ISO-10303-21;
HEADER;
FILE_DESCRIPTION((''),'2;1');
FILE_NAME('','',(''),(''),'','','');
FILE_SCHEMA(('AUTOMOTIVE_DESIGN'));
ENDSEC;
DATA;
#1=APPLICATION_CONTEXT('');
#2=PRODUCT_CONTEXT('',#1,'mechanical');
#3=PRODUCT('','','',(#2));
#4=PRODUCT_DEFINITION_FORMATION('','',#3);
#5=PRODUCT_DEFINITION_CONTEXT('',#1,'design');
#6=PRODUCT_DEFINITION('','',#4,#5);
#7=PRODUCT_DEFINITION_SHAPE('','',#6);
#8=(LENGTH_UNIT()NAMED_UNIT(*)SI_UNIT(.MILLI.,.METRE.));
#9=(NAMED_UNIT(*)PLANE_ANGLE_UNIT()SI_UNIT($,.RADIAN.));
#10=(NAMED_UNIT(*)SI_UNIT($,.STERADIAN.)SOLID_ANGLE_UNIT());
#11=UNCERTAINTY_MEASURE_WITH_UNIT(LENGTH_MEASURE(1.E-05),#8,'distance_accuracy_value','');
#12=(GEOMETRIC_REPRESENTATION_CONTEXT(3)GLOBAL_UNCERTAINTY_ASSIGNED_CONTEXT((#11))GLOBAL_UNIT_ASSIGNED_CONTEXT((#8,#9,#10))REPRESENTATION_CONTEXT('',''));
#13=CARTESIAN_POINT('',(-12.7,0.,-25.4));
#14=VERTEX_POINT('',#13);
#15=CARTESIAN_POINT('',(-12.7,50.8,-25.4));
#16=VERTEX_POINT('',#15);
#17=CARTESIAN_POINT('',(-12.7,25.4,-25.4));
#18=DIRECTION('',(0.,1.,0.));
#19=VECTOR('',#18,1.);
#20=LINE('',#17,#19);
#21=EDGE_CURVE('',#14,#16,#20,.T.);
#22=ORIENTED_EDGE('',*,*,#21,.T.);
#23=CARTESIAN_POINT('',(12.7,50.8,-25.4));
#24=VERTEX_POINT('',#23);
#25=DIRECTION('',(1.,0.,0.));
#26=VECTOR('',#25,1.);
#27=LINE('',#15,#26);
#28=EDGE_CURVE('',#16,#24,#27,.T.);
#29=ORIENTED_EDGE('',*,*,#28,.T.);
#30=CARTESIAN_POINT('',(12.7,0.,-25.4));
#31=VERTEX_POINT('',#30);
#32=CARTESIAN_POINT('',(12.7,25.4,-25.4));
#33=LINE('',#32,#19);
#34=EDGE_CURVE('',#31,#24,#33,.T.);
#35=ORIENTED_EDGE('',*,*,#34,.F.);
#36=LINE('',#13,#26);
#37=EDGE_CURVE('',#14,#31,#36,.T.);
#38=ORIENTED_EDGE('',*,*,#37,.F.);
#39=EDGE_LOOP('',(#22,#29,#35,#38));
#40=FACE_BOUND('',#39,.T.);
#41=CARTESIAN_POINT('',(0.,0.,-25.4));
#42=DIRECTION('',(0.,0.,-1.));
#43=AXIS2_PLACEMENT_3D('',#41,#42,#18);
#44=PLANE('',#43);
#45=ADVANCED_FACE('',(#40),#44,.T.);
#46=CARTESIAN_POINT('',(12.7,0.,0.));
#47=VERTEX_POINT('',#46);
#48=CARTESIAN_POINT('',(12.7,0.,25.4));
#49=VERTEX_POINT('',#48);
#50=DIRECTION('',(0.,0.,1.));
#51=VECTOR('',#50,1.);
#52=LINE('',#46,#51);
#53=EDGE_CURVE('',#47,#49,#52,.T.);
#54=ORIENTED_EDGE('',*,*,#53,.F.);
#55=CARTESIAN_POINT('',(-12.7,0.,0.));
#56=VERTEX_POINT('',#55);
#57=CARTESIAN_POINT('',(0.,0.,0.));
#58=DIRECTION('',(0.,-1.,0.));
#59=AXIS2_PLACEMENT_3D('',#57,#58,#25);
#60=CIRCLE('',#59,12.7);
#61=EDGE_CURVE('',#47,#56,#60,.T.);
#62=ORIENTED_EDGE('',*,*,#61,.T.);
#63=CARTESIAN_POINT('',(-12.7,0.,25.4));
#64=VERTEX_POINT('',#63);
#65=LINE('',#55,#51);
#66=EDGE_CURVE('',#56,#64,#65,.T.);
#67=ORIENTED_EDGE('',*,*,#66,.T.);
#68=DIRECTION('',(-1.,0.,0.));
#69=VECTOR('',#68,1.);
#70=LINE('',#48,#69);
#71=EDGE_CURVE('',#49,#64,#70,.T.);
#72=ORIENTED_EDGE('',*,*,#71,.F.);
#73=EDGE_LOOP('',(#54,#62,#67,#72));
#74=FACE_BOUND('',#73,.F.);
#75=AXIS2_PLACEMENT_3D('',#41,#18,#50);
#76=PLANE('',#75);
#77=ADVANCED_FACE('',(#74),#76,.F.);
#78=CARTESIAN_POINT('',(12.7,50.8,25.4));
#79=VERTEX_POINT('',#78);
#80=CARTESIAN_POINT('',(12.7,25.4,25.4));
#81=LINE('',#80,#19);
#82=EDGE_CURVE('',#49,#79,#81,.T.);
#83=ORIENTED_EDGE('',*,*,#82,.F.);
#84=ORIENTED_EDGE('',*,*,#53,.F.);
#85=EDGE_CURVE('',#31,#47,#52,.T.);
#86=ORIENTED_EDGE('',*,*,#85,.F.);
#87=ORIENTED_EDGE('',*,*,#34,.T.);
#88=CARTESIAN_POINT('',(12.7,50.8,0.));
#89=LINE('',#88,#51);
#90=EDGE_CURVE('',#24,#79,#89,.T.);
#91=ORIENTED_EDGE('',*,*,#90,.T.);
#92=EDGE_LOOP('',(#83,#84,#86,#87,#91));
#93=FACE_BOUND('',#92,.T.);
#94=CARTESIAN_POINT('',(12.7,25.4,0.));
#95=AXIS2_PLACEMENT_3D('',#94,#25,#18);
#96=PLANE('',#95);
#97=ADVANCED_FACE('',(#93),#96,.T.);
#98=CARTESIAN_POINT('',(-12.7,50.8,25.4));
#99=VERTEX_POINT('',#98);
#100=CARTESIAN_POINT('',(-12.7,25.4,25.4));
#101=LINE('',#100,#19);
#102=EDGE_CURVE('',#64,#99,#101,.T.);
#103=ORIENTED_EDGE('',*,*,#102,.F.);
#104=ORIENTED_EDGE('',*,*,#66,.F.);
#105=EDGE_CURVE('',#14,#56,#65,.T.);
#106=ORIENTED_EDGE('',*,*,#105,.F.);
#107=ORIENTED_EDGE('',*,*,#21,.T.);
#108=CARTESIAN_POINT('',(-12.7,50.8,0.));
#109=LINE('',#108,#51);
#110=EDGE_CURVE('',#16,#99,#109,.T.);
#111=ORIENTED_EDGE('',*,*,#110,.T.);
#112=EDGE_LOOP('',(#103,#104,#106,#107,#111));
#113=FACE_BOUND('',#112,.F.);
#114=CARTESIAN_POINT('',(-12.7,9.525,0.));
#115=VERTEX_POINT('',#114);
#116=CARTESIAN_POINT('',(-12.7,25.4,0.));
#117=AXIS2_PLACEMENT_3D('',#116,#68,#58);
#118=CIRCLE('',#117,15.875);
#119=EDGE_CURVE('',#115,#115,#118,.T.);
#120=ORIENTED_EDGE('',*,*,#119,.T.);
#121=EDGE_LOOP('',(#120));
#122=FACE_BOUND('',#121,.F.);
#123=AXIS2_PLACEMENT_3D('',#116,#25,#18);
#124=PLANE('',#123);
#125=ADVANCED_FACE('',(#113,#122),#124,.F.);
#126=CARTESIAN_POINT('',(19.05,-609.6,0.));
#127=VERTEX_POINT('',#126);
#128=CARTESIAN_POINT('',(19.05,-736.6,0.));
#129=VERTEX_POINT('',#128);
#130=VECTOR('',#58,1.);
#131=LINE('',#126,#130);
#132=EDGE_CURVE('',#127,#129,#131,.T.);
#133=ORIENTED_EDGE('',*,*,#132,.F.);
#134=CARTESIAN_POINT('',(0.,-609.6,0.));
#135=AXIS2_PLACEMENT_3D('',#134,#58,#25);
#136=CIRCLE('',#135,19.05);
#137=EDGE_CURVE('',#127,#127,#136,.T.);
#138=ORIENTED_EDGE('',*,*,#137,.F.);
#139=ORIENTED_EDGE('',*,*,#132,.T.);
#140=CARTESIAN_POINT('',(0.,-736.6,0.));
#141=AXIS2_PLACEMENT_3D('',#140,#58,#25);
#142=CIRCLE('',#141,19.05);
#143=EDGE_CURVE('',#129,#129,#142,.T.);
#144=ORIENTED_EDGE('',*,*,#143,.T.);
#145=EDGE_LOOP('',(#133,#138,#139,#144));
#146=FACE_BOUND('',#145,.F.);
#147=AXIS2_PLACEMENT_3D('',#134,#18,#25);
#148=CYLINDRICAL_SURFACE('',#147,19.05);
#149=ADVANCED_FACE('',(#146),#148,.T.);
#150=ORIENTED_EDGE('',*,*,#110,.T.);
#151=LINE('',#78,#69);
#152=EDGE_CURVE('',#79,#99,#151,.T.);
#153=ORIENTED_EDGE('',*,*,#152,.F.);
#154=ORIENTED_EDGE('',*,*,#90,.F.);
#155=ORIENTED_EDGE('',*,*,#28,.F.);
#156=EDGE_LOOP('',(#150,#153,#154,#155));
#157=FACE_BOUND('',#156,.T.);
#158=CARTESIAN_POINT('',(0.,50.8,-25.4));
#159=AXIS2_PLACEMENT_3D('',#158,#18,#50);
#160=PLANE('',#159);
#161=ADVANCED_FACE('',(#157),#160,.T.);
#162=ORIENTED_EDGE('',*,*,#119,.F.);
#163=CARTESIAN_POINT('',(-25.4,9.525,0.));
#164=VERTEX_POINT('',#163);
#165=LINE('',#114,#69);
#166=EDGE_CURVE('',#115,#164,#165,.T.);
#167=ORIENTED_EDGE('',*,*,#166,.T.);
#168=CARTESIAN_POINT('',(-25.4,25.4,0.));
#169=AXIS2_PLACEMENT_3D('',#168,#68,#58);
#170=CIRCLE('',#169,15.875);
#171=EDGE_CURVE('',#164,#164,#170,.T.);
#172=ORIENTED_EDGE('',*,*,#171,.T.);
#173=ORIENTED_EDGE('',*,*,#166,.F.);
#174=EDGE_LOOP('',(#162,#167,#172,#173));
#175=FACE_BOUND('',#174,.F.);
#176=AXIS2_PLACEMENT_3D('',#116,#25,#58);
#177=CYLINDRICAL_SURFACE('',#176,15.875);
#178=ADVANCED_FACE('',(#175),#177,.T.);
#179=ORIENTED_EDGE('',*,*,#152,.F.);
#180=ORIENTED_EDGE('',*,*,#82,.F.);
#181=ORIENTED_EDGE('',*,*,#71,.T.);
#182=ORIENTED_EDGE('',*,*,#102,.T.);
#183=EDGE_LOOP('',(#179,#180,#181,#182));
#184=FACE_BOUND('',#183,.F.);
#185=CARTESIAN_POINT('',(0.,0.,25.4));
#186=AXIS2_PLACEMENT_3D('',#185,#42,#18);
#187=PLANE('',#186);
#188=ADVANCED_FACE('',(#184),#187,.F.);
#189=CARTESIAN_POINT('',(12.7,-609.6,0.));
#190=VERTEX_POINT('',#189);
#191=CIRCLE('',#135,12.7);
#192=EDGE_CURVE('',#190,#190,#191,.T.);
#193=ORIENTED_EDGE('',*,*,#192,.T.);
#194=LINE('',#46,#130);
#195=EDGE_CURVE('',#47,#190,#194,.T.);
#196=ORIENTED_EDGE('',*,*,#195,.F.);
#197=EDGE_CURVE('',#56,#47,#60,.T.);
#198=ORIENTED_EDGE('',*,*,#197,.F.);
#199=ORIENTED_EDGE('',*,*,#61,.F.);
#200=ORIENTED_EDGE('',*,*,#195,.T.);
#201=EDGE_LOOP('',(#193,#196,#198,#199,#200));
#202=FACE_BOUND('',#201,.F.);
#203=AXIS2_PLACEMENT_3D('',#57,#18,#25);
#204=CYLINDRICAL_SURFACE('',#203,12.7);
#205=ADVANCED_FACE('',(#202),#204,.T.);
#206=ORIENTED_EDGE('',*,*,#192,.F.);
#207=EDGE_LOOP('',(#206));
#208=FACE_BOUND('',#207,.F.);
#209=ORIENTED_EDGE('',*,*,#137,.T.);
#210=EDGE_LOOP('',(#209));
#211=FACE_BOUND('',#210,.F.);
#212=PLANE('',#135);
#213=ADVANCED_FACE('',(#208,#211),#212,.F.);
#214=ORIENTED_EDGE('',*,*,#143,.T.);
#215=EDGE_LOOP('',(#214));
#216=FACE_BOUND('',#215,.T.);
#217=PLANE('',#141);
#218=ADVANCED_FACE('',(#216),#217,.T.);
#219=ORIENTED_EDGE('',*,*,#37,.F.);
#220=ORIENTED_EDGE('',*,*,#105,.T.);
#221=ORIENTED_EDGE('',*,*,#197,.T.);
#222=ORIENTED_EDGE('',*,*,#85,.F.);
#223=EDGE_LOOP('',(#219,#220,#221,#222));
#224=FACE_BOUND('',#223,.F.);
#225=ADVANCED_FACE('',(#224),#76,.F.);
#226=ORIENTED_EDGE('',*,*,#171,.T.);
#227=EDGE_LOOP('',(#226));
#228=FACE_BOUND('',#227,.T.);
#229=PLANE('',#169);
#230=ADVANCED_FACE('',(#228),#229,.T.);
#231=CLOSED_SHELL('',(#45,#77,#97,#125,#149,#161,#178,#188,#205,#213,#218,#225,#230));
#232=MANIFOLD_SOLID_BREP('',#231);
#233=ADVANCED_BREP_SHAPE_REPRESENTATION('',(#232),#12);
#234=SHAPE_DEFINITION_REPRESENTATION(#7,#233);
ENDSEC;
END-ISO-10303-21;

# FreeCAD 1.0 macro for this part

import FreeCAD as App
import Part
import Sketcher

V = App.Vector
Q = App.Units.Quantity


def add_polygon(sketch, points):
    """Adds a closed chain of lines whose ends are joined by coincident constraints."""
    first, n = sketch.GeometryCount, len(points)
    for a, b in zip(points, points[1:] + points[:1]):
        sketch.addGeometry(Part.LineSegment(App.Vector(*a, 0), App.Vector(*b, 0)), False)
    for i in range(n):
        sketch.addConstraint(Sketcher.Constraint("Coincident", first + i, 2, first + (i + 1) % n, 1))

doc = App.newDocument("Part")
body = doc.addObject("PartDesign::Body", "Body")

# Sketch on XZ plane
sketch1 = body.newObject("Sketcher::SketchObject", "Sketch")
sketch1.AttachmentSupport = (doc.getObject("XZ_Plane"), [""])
sketch1.MapMode = "FlatFace"
sketch1.addGeometry(Part.Circle(V(0, 0, 0), V(0, 0, 1), 13), False)
sketch1.addConstraint([
    Sketcher.Constraint("Coincident", 0, 3, -1, 1),
    Sketcher.Constraint("Diameter", 0, Q("1 in")),
])
pad1 = body.newObject("PartDesign::Pad", "Pad")
pad1.Profile = sketch1
pad1.Length = Q("24 in")

# Sketch on XZ plane
sketch2 = body.newObject("Sketcher::SketchObject", "Sketch001")
sketch2.AttachmentSupport = (doc.getObject("XZ_Plane"), [""])
sketch2.MapMode = "FlatFace"
sketch2.AttachmentOffset = App.Placement(V(0, 0, 24 * 25.4), App.Rotation())
sketch2.addGeometry(Part.Circle(V(0, 0, 0), V(0, 0, 1), 19), False)
sketch2.addConstraint([
    Sketcher.Constraint("Coincident", 0, 3, -1, 1),
    Sketcher.Constraint("Diameter", 0, Q("1.5 in")),
])
pad2 = body.newObject("PartDesign::Pad", "Pad001")
pad2.Profile = sketch2
pad2.Length = Q("5 in")

# Sketch on YZ plane
sketch3 = body.newObject("Sketcher::SketchObject", "Sketch002")
sketch3.AttachmentSupport = (doc.getObject("YZ_Plane"), [""])
sketch3.MapMode = "FlatFace"
add_polygon(sketch3, [(0, 25), (0, -25), (51, -25), (51, 25)])  # lines 0-3
sketch3.addConstraint([
    Sketcher.Constraint("Vertical", 0),
    Sketcher.Constraint("Horizontal", 1),
    Sketcher.Constraint("Vertical", 2),
    Sketcher.Constraint("Horizontal", 3),
    Sketcher.Constraint("Symmetric", 0, 2, 3, 2, -1, 1),
    Sketcher.Constraint("Equal", 3, 0),
    Sketcher.Constraint("DistanceX", 1, 1, 1, 2, Q("2 in")),
])
pad3 = body.newObject("PartDesign::Pad", "Pad002")
pad3.Profile = sketch3
pad3.Length = Q("1 in")
pad3.Midplane = True

# Sketch on YZ plane
sketch4 = body.newObject("Sketcher::SketchObject", "Sketch003")
sketch4.AttachmentSupport = (doc.getObject("YZ_Plane"), [""])
sketch4.MapMode = "FlatFace"
sketch4.AttachmentOffset = App.Placement(V(0, 0, -0.5 * 25.4), App.Rotation())
sketch4.addGeometry(Part.Circle(V(25, 0, 0), V(0, 0, 1), 16), False)
sketch4.addConstraint([
    Sketcher.Constraint("PointOnObject", 0, 3, -1),
    Sketcher.Constraint("Diameter", 0, Q("1.25 in")),
    Sketcher.Constraint("DistanceX", -1, 1, 0, 3, Q("1 in")),
])
pad4 = body.newObject("PartDesign::Pad", "Pad003")
pad4.Profile = sketch4
pad4.Length = Q("0.5 in")
pad4.Reversed = True

doc.recompute()
